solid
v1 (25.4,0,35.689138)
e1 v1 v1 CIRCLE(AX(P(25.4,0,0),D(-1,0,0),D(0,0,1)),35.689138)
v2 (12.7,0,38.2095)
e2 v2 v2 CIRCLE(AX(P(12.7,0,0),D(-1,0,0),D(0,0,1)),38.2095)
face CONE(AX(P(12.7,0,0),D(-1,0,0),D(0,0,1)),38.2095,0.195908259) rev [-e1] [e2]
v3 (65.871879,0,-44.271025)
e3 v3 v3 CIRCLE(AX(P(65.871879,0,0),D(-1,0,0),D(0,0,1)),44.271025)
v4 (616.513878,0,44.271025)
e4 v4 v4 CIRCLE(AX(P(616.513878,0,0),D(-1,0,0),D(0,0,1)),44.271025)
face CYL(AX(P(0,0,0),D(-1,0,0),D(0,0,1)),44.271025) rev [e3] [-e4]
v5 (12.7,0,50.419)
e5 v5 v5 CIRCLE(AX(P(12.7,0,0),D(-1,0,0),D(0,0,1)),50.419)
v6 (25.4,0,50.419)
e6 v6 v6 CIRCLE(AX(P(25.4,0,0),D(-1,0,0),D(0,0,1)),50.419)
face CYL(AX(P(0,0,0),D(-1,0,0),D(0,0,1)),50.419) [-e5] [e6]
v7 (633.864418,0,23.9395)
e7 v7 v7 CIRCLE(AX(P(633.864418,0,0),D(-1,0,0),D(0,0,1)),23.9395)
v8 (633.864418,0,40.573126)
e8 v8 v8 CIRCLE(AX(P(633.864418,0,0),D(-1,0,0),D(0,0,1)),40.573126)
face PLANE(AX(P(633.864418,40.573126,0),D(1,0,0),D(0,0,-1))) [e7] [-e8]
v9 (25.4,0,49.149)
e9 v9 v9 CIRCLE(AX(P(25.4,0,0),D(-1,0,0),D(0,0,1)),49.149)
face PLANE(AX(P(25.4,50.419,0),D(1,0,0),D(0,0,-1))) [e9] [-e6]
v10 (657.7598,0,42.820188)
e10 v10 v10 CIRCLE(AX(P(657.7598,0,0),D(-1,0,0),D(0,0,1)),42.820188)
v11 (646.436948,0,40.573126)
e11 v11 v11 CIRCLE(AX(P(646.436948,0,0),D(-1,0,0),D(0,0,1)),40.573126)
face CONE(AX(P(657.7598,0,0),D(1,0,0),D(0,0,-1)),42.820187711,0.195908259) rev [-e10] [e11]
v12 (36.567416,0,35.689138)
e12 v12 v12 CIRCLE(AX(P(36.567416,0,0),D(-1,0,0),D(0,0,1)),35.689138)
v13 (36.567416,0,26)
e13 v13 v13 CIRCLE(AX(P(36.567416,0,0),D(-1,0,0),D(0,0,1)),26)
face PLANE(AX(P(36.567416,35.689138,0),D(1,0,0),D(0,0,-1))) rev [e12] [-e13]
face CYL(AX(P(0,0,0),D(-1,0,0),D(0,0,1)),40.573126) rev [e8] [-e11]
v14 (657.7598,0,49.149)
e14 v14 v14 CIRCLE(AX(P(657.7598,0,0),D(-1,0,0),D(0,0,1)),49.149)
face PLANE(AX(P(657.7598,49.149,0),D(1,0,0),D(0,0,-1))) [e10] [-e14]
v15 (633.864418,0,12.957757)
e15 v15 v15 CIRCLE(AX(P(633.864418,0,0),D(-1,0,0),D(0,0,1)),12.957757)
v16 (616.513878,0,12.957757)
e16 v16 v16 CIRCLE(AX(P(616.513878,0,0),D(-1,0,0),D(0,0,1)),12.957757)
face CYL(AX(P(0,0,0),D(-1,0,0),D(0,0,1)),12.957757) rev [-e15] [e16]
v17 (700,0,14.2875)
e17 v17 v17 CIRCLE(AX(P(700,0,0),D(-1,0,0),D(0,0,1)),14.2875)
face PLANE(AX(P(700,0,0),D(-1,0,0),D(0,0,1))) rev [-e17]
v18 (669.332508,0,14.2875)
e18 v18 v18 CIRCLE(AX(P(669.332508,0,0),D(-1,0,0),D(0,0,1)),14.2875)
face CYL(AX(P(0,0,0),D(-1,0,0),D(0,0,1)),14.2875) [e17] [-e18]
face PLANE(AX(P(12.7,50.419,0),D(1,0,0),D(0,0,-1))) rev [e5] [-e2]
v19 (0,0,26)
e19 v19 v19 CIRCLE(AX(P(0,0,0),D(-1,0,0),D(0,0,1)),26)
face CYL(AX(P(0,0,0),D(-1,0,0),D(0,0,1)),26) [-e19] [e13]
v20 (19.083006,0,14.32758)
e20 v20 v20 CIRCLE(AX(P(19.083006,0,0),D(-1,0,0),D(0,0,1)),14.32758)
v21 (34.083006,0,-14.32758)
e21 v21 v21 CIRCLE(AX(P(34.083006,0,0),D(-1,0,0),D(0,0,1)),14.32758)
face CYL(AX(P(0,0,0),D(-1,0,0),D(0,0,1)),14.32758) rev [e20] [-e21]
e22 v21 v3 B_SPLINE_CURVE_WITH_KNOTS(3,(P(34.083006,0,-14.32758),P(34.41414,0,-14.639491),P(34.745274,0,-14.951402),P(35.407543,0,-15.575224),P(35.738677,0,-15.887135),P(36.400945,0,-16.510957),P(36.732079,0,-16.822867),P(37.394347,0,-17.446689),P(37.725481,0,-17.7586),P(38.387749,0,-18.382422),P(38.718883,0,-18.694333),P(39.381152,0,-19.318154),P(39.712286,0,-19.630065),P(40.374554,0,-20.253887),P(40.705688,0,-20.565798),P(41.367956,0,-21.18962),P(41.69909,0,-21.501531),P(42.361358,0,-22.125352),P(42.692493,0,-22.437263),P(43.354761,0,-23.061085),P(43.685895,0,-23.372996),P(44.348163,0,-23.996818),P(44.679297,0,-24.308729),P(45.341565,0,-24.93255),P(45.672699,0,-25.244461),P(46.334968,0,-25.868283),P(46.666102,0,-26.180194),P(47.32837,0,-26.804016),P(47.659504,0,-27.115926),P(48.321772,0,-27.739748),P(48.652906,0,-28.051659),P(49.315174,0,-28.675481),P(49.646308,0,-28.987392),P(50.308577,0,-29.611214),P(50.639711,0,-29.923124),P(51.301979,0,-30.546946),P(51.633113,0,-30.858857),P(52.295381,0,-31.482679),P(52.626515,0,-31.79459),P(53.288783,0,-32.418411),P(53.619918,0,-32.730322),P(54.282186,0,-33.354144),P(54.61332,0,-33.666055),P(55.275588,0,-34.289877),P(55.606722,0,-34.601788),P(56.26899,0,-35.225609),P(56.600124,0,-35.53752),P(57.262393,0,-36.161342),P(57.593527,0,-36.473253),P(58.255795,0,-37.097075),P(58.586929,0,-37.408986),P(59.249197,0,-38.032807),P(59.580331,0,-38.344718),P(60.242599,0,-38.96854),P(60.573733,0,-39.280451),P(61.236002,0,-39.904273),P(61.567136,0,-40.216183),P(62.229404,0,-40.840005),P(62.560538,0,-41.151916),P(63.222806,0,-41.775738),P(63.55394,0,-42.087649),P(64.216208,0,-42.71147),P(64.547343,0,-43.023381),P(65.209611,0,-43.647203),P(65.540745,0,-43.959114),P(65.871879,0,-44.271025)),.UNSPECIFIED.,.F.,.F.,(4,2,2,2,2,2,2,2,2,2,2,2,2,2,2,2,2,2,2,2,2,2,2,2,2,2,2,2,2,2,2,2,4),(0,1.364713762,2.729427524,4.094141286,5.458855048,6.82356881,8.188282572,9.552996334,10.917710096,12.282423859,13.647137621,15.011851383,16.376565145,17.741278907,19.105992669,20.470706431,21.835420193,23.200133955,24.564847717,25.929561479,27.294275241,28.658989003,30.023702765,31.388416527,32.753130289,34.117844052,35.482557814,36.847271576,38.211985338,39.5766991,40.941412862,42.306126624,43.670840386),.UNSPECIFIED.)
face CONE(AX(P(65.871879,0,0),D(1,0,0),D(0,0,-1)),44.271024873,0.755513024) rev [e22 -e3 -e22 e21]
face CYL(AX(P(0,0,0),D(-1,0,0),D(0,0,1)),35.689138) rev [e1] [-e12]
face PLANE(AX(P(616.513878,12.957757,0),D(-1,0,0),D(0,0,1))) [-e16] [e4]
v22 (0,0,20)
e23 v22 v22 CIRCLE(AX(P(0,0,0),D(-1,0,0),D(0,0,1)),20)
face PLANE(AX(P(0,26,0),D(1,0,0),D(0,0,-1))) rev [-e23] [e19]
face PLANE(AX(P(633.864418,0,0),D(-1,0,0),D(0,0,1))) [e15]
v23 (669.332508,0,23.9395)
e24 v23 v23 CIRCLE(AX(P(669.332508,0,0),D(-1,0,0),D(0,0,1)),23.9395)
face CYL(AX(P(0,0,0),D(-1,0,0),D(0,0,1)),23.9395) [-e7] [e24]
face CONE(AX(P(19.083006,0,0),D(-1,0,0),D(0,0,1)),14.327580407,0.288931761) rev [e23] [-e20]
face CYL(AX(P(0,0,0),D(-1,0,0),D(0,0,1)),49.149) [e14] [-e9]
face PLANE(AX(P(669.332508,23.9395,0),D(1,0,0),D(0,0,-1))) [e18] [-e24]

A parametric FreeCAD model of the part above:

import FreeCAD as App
import Part
import Sketcher
from FreeCAD import Vector
Q = App.Units.Quantity


def add_polygon(sketch, points):
    """Adds a closed chain of lines whose ends are joined by coincident constraints."""
    first, n = sketch.GeometryCount, len(points)
    for a, b in zip(points, points[1:] + points[:1]):
        sketch.addGeometry(Part.LineSegment(App.Vector(*a, 0), App.Vector(*b, 0)), False)
    for i in range(n):
        sketch.addConstraint(Sketcher.Constraint("Coincident", first + i, 2, first + (i + 1) % n, 1))

doc = App.newDocument("Part")
body = doc.addObject("PartDesign::Body", "Body")

sketch1 = doc.addObject("Sketcher::SketchObject", "Sketch")
body.addObject(sketch1)
sketch1.AttachmentSupport = (doc.XY_Plane, [""])
sketch1.MapMode = "FlatFace"
add_polygon(sketch1, [(36.6, 26), (0, 26), (0, 0), (700, 0), (700, 14.3), (669.3, 14.3), (669.3, 23.9), (633.9, 23.9), (633.9, 40.6), (646.4, 40.6), (657.8, 42.8), (657.8, 49.1), (25.4, 49.1), (25.4, 50.4), (12.7, 50.4), (12.7, 38.2), (25.4, 35.7), (36.6, 35.7)])
sketch1.addConstraint([
    Sketcher.Constraint("Horizontal", 0),
    Sketcher.Constraint("Vertical", 1),
    Sketcher.Constraint("Horizontal", 2),
    Sketcher.Constraint("Vertical", 3),
    Sketcher.Constraint("Horizontal", 4),
    Sketcher.Constraint("Vertical", 5),
    Sketcher.Constraint("Horizontal", 6),
    Sketcher.Constraint("Vertical", 7),
    Sketcher.Constraint("Horizontal", 8),
    Sketcher.Constraint("Vertical", 10),
    Sketcher.Constraint("Horizontal", 11),
    Sketcher.Constraint("Vertical", 12),
    Sketcher.Constraint("Horizontal", 13),
    Sketcher.Constraint("Vertical", 14),
    Sketcher.Constraint("Horizontal", 16),
    Sketcher.Constraint("Vertical", 17),
    Sketcher.Constraint("Coincident", 1, 2, -1, 1),
    Sketcher.Constraint("Vertical", 12, 2, 15, 2),
    Sketcher.Constraint("DistanceX", 2, 1, 2, 2, Q("700 mm")),
    Sketcher.Constraint("DistanceY", 1, 2, 1, 1, Q("26 mm")),
    Sketcher.Constraint("DistanceX", 13, 2, 13, 1, Q("12.7 mm")),
    Sketcher.Constraint("DistanceY", 12, 1, 12, 2, Q("1.27 mm")),
    Sketcher.Constraint("DistanceX", -1, 1, 11, 2, Q("25.4 mm")),
    Sketcher.Constraint("DistanceY", 5, 1, 5, 2, Q("9.652 mm")),
    Sketcher.Constraint("DistanceX", 11, 2, 11, 1, Q("632.3598 mm")),
    Sketcher.Constraint("DistanceY", 3, 1, 3, 2, Q("14.2875 mm")),
    Sketcher.Constraint("DistanceY", 14, 2, 14, 1, Q("12.2095 mm")),
    Sketcher.Constraint("DistanceY", -1, 1, 10, 2, Q("49.149 mm")),
    Sketcher.Constraint("DistanceX", 6, 2, 6, 1, Q("35.46809 mm")),
    Sketcher.Constraint("DistanceX", 8, 1, 8, 2, Q("12.57253 mm")),
    Sketcher.Constraint("DistanceY", 17, 2, 17, 1, Q("9.689138 mm")),
    Sketcher.Constraint("DistanceX", 0, 2, 0, 1, Q("36.567416 mm")),
    Sketcher.Constraint("DistanceX", 4, 2, 4, 1, Q("30.667492 mm")),
    Sketcher.Constraint("DistanceY", 7, 1, 7, 2, Q("16.633626 mm")),
    Sketcher.Constraint("DistanceY", 10, 1, 10, 2, Q("6.328812 mm")),
])
revolution = doc.addObject("PartDesign::Revolution", "Revolution")
body.addObject(revolution)
revolution.Profile = sketch1
revolution.ReferenceAxis = (sketch1, ["H_Axis"])
revolution.Angle = 360

sketch2 = doc.addObject("Sketcher::SketchObject", "Sketch001")
body.addObject(sketch2)
sketch2.AttachmentSupport = (doc.XY_Plane, [""])
sketch2.MapMode = "FlatFace"
add_polygon(sketch2, [(0, 20), (0, 0), (634, 0), (634, 13), (617, 13), (617, 44), (66, 44), (34, 14), (19, 14)])
sketch2.addConstraint([
    Sketcher.Constraint("Vertical", 0),
    Sketcher.Constraint("Horizontal", 1),
    Sketcher.Constraint("Vertical", 2),
    Sketcher.Constraint("Horizontal", 3),
    Sketcher.Constraint("Vertical", 4),
    Sketcher.Constraint("Horizontal", 5),
    Sketcher.Constraint("Horizontal", 7),
    Sketcher.Constraint("Coincident", 0, 2, -1, 1),
    Sketcher.Constraint("DistanceX", 7, 2, 7, 1, Q("15 mm")),
    Sketcher.Constraint("DistanceY", 0, 2, 0, 1, Q("20 mm")),
    Sketcher.Constraint("DistanceX", 5, 2, 5, 1, Q("550.641999 mm")),
    Sketcher.Constraint("DistanceX", 1, 1, 1, 2, Q("633.864418 mm")),
    Sketcher.Constraint("DistanceX", 3, 2, 3, 1, Q("17.35054 mm")),
    Sketcher.Constraint("Distance", 6, Q("43.67084 mm")),
    Sketcher.Constraint("DistanceY", 2, 1, 2, 2, Q("12.957757 mm")),
    Sketcher.Constraint("DistanceY", 4, 1, 4, 2, Q("31.313268 mm")),
    Sketcher.Constraint("DistanceY", -1, 1, 6, 2, Q("14.32758 mm")),
])
groove = doc.addObject("PartDesign::Groove", "Groove")
body.addObject(groove)
groove.Profile = sketch2
groove.ReferenceAxis = (sketch2, ["H_Axis"])
groove.Angle = 360

doc.recompute()
